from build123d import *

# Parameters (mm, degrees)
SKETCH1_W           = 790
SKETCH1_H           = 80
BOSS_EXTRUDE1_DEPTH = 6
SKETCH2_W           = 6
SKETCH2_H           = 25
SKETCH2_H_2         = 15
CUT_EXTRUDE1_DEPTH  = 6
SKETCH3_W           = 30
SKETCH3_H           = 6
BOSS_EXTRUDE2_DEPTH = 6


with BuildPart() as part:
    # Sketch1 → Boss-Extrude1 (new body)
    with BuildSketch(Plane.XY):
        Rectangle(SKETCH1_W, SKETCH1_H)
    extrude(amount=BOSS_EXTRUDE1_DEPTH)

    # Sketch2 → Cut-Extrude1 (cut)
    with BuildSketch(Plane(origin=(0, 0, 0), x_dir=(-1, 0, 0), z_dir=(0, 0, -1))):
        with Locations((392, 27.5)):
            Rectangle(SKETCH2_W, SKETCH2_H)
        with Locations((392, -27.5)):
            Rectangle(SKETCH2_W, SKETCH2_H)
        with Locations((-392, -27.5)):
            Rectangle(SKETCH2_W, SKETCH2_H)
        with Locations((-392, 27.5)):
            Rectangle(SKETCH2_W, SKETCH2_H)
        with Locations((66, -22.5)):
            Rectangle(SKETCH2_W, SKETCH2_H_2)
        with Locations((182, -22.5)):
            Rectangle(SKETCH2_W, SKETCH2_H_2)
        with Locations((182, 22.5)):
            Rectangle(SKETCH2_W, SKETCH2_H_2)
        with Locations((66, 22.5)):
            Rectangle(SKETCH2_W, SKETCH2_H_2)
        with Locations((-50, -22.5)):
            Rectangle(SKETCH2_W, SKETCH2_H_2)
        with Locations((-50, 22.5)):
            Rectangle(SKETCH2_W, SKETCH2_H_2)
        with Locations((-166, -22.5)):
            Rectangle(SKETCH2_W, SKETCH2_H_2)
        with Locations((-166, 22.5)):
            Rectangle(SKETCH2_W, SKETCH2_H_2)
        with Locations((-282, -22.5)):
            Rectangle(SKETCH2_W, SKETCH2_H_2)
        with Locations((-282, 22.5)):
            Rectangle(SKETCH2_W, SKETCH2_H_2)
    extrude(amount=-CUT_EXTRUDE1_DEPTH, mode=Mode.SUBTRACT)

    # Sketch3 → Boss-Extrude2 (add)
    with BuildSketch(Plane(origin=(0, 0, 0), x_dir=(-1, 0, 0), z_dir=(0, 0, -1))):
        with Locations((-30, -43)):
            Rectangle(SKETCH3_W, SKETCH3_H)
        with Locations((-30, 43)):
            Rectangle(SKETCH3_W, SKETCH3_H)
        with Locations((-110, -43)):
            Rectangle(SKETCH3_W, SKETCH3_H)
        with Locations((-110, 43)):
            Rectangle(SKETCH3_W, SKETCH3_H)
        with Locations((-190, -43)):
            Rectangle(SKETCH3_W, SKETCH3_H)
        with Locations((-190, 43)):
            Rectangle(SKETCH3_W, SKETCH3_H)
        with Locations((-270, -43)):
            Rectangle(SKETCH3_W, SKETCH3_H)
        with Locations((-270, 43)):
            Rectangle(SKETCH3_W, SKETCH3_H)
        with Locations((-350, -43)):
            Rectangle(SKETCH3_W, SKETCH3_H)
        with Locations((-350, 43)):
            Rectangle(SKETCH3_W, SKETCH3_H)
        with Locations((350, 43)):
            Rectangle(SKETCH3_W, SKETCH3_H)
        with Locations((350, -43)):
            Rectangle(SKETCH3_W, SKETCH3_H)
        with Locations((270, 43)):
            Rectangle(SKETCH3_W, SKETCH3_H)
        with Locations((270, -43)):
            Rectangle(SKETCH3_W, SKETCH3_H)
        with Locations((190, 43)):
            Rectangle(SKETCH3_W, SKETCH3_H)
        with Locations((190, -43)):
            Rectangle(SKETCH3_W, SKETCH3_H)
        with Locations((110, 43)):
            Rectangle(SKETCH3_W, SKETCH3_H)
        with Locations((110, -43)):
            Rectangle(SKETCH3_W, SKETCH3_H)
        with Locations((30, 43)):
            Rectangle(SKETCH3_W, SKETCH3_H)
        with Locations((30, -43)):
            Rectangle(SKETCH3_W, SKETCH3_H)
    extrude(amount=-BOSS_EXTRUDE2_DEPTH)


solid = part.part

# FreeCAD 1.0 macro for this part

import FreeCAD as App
import Part
import Sketcher
from FreeCAD import Vector


def add_polygon(sketch, points):
    """Adds a closed chain of lines whose ends are joined by coincident constraints."""
    first, n = sketch.GeometryCount, len(points)
    for a, b in zip(points, points[1:] + points[:1]):
        sketch.addGeometry(Part.LineSegment(App.Vector(*a, 0), App.Vector(*b, 0)), False)
    for i in range(n):
        sketch.addConstraint(Sketcher.Constraint("Coincident", first + i, 2, first + (i + 1) % n, 1))

doc = App.newDocument("Part")
body = doc.addObject("PartDesign::Body", "Body")

# Sketch on XY plane
sketch1 = body.newObject("Sketcher::SketchObject", "Sketch")
sketch1.AttachmentSupport = (doc.getObject("XY_Plane"), [""])
sketch1.MapMode = "FlatFace"
add_polygon(sketch1, [(-395, 40), (-395, -40), (395, -40), (395, 40)])  # lines 0-3
sketch1.addConstraint(Sketcher.Constraint("Vertical", 0))
sketch1.addConstraint(Sketcher.Constraint("Horizontal", 1))
sketch1.addConstraint(Sketcher.Constraint("Vertical", 2))
sketch1.addConstraint(Sketcher.Constraint("Horizontal", 3))
sketch1.addConstraint(Sketcher.Constraint("Symmetric", 0, 2, 2, 2, -1, 1))
sketch1.addConstraint(Sketcher.Constraint("DistanceX", 1, 1, 1, 2, 790.0))
sketch1.addConstraint(Sketcher.Constraint("DistanceY", 0, 2, 0, 1, 80.0))
pad1 = body.newObject("PartDesign::Pad", "Pad")
pad1.Profile = sketch1
pad1.Length = 6

# Sketch on XY plane
sketch2 = body.newObject("Sketcher::SketchObject", "Sketch001")
sketch2.AttachmentSupport = (doc.getObject("XY_Plane"), [""])
sketch2.MapMode = "FlatFace"
add_polygon(sketch2, [(-389, 40), (-389, 15), (-395, 15), (-395, 40)])  # lines 0-3
add_polygon(sketch2, [(-389, -15), (-389, -40), (-395, -40), (-395, -15)])  # lines 4-7
add_polygon(sketch2, [(395, -15), (395, -40), (389, -40), (389, -15)])  # lines 8-11
add_polygon(sketch2, [(395, 40), (395, 15), (389, 15), (389, 40)])  # lines 12-15
add_polygon(sketch2, [(-63, -15), (-63, -30), (-69, -30), (-69, -15)])  # lines 16-19
add_polygon(sketch2, [(-179, -15), (-179, -30), (-185, -30), (-185, -15)])  # lines 20-23
add_polygon(sketch2, [(-179, 30), (-179, 15), (-185, 15), (-185, 30)])  # lines 24-27
add_polygon(sketch2, [(-63, 30), (-63, 15), (-69, 15), (-69, 30)])  # lines 28-31
add_polygon(sketch2, [(53, -15), (53, -30), (47, -30), (47, -15)])  # lines 32-35
add_polygon(sketch2, [(53, 30), (53, 15), (47, 15), (47, 30)])  # lines 36-39
add_polygon(sketch2, [(169, -15), (169, -30), (163, -30), (163, -15)])  # lines 40-43
add_polygon(sketch2, [(169, 30), (169, 15), (163, 15), (163, 30)])  # lines 44-47
add_polygon(sketch2, [(285, -15), (285, -30), (279, -30), (279, -15)])  # lines 48-51
add_polygon(sketch2, [(285, 30), (285, 15), (279, 15), (279, 30)])  # lines 52-55
sketch2.addConstraint(Sketcher.Constraint("Vertical", 0))
sketch2.addConstraint(Sketcher.Constraint("Horizontal", 1))
sketch2.addConstraint(Sketcher.Constraint("Vertical", 2))
sketch2.addConstraint(Sketcher.Constraint("Horizontal", 3))
sketch2.addConstraint(Sketcher.Constraint("Vertical", 4))
sketch2.addConstraint(Sketcher.Constraint("Horizontal", 5))
sketch2.addConstraint(Sketcher.Constraint("Vertical", 6))
sketch2.addConstraint(Sketcher.Constraint("Horizontal", 7))
sketch2.addConstraint(Sketcher.Constraint("Vertical", 8))
sketch2.addConstraint(Sketcher.Constraint("Horizontal", 9))
sketch2.addConstraint(Sketcher.Constraint("Vertical", 10))
sketch2.addConstraint(Sketcher.Constraint("Horizontal", 11))
sketch2.addConstraint(Sketcher.Constraint("Vertical", 12))
sketch2.addConstraint(Sketcher.Constraint("Horizontal", 13))
sketch2.addConstraint(Sketcher.Constraint("Vertical", 14))
sketch2.addConstraint(Sketcher.Constraint("Horizontal", 15))
sketch2.addConstraint(Sketcher.Constraint("Vertical", 16))
sketch2.addConstraint(Sketcher.Constraint("Horizontal", 17))
sketch2.addConstraint(Sketcher.Constraint("Vertical", 18))
sketch2.addConstraint(Sketcher.Constraint("Horizontal", 19))
sketch2.addConstraint(Sketcher.Constraint("Vertical", 20))
sketch2.addConstraint(Sketcher.Constraint("Horizontal", 21))
sketch2.addConstraint(Sketcher.Constraint("Vertical", 22))
sketch2.addConstraint(Sketcher.Constraint("Horizontal", 23))
sketch2.addConstraint(Sketcher.Constraint("Vertical", 24))
sketch2.addConstraint(Sketcher.Constraint("Horizontal", 25))
sketch2.addConstraint(Sketcher.Constraint("Vertical", 26))
sketch2.addConstraint(Sketcher.Constraint("Horizontal", 27))
sketch2.addConstraint(Sketcher.Constraint("Vertical", 28))
sketch2.addConstraint(Sketcher.Constraint("Horizontal", 29))
sketch2.addConstraint(Sketcher.Constraint("Vertical", 30))
sketch2.addConstraint(Sketcher.Constraint("Horizontal", 31))
sketch2.addConstraint(Sketcher.Constraint("Vertical", 32))
sketch2.addConstraint(Sketcher.Constraint("Horizontal", 33))
sketch2.addConstraint(Sketcher.Constraint("Vertical", 34))
sketch2.addConstraint(Sketcher.Constraint("Horizontal", 35))
sketch2.addConstraint(Sketcher.Constraint("Vertical", 36))
sketch2.addConstraint(Sketcher.Constraint("Horizontal", 37))
sketch2.addConstraint(Sketcher.Constraint("Vertical", 38))
sketch2.addConstraint(Sketcher.Constraint("Horizontal", 39))
sketch2.addConstraint(Sketcher.Constraint("Vertical", 40))
sketch2.addConstraint(Sketcher.Constraint("Horizontal", 41))
sketch2.addConstraint(Sketcher.Constraint("Vertical", 42))
sketch2.addConstraint(Sketcher.Constraint("Horizontal", 43))
sketch2.addConstraint(Sketcher.Constraint("Vertical", 44))
sketch2.addConstraint(Sketcher.Constraint("Horizontal", 45))
sketch2.addConstraint(Sketcher.Constraint("Vertical", 46))
sketch2.addConstraint(Sketcher.Constraint("Horizontal", 47))
sketch2.addConstraint(Sketcher.Constraint("Vertical", 48))
sketch2.addConstraint(Sketcher.Constraint("Horizontal", 49))
sketch2.addConstraint(Sketcher.Constraint("Vertical", 50))
sketch2.addConstraint(Sketcher.Constraint("Horizontal", 51))
sketch2.addConstraint(Sketcher.Constraint("Vertical", 52))
sketch2.addConstraint(Sketcher.Constraint("Horizontal", 53))
sketch2.addConstraint(Sketcher.Constraint("Vertical", 54))
sketch2.addConstraint(Sketcher.Constraint("Horizontal", 55))
sketch2.addConstraint(Sketcher.Constraint("Symmetric", 2, 2, 8, 2, -1, 1))
sketch2.addConstraint(Sketcher.Constraint("Symmetric", 0, 2, 10, 2, -1, 1))
sketch2.addConstraint(Sketcher.Constraint("Symmetric", 6, 2, 12, 2, -1, 1))
sketch2.addConstraint(Sketcher.Constraint("Symmetric", 4, 2, 14, 2, -1, 1))
sketch2.addConstraint(Sketcher.Constraint("Symmetric", 5, 2, 8, 2, -2))
sketch2.addConstraint(Sketcher.Constraint("Symmetric", 7, 2, 10, 2, -2))
sketch2.addConstraint(Sketcher.Constraint("Symmetric", 23, 2, 24, 2, -1))
sketch2.addConstraint(Sketcher.Constraint("Symmetric", 21, 2, 26, 2, -1))
sketch2.addConstraint(Sketcher.Constraint("Symmetric", 19, 2, 28, 2, -1))
sketch2.addConstraint(Sketcher.Constraint("Symmetric", 17, 2, 30, 2, -1))
sketch2.addConstraint(Sketcher.Constraint("Symmetric", 35, 2, 36, 2, -1))
sketch2.addConstraint(Sketcher.Constraint("Symmetric", 33, 2, 38, 2, -1))
sketch2.addConstraint(Sketcher.Constraint("Symmetric", 43, 2, 44, 2, -1))
sketch2.addConstraint(Sketcher.Constraint("Symmetric", 41, 2, 46, 2, -1))
sketch2.addConstraint(Sketcher.Constraint("Symmetric", 51, 2, 52, 2, -1))
sketch2.addConstraint(Sketcher.Constraint("Symmetric", 49, 2, 54, 2, -1))
sketch2.addConstraint(Sketcher.Constraint("Horizontal", 11, 2, 18, 2))
sketch2.addConstraint(Sketcher.Constraint("Horizontal", 17, 2, 20, 2))
sketch2.addConstraint(Sketcher.Constraint("Horizontal", 19, 2, 22, 2))
sketch2.addConstraint(Sketcher.Constraint("Horizontal", 21, 2, 32, 2))
sketch2.addConstraint(Sketcher.Constraint("Horizontal", 23, 2, 34, 2))
sketch2.addConstraint(Sketcher.Constraint("Horizontal", 33, 2, 40, 2))
sketch2.addConstraint(Sketcher.Constraint("Horizontal", 35, 2, 42, 2))
sketch2.addConstraint(Sketcher.Constraint("Horizontal", 41, 2, 48, 2))
sketch2.addConstraint(Sketcher.Constraint("Horizontal", 43, 2, 50, 2))
sketch2.addConstraint(Sketcher.Constraint("Equal", 15, 17))
sketch2.addConstraint(Sketcher.Constraint("Equal", 19, 21))
sketch2.addConstraint(Sketcher.Constraint("Equal", 31, 33))
sketch2.addConstraint(Sketcher.Constraint("Equal", 39, 41))
sketch2.addConstraint(Sketcher.Constraint("Equal", 47, 49))
sketch2.addConstraint(Sketcher.Constraint("DistanceX", 1, 2, 1, 1, 6.0))
sketch2.addConstraint(Sketcher.Constraint("DistanceY", 0, 2, 0, 1, 25.0))
sketch2.addConstraint(Sketcher.Constraint("DistanceY", 16, 2, 16, 1, 15.0))
sketch2.addConstraint(Sketcher.Constraint("DistanceX", 0, 2, -1, 1, 389.0))
sketch2.addConstraint(Sketcher.Constraint("DistanceY", -1, 1, 0, 2, 15.0))
sketch2.addConstraint(Sketcher.Constraint("DistanceX", 16, 2, -1, 1, 63.0))
sketch2.addConstraint(Sketcher.Constraint("DistanceX", 20, 2, -1, 1, 179.0))
sketch2.addConstraint(Sketcher.Constraint("DistanceX", -1, 1, 32, 2, 53.0))
sketch2.addConstraint(Sketcher.Constraint("DistanceX", -1, 1, 40, 2, 169.0))
sketch2.addConstraint(Sketcher.Constraint("DistanceX", -1, 1, 48, 2, 285.0))
pocket1 = body.newObject("PartDesign::Pocket", "Pocket")
pocket1.Profile = sketch2
pocket1.Length = 6
pocket1.Reversed = True

# Sketch on XY plane
sketch3 = body.newObject("Sketcher::SketchObject", "Sketch002")
sketch3.AttachmentSupport = (doc.getObject("XY_Plane"), [""])
sketch3.MapMode = "FlatFace"
add_polygon(sketch3, [(45, -40), (45, -46), (15, -46), (15, -40)])  # lines 0-3
add_polygon(sketch3, [(45, 46), (45, 40), (15, 40), (15, 46)])  # lines 4-7
add_polygon(sketch3, [(125, -40), (125, -46), (95, -46), (95, -40)])  # lines 8-11
add_polygon(sketch3, [(125, 46), (125, 40), (95, 40), (95, 46)])  # lines 12-15
add_polygon(sketch3, [(205, -40), (205, -46), (175, -46), (175, -40)])  # lines 16-19
add_polygon(sketch3, [(205, 46), (205, 40), (175, 40), (175, 46)])  # lines 20-23
add_polygon(sketch3, [(285, -40), (285, -46), (255, -46), (255, -40)])  # lines 24-27
add_polygon(sketch3, [(285, 46), (285, 40), (255, 40), (255, 46)])  # lines 28-31
add_polygon(sketch3, [(365, -40), (365, -46), (335, -46), (335, -40)])  # lines 32-35
add_polygon(sketch3, [(365, 46), (365, 40), (335, 40), (335, 46)])  # lines 36-39
add_polygon(sketch3, [(-335, 46), (-335, 40), (-365, 40), (-365, 46)])  # lines 40-43
add_polygon(sketch3, [(-335, -40), (-335, -46), (-365, -46), (-365, -40)])  # lines 44-47
add_polygon(sketch3, [(-255, 46), (-255, 40), (-285, 40), (-285, 46)])  # lines 48-51
add_polygon(sketch3, [(-255, -40), (-255, -46), (-285, -46), (-285, -40)])  # lines 52-55
add_polygon(sketch3, [(-175, 46), (-175, 40), (-205, 40), (-205, 46)])  # lines 56-59
add_polygon(sketch3, [(-175, -40), (-175, -46), (-205, -46), (-205, -40)])  # lines 60-63
add_polygon(sketch3, [(-95, 46), (-95, 40), (-125, 40), (-125, 46)])  # lines 64-67
add_polygon(sketch3, [(-95, -40), (-95, -46), (-125, -46), (-125, -40)])  # lines 68-71
add_polygon(sketch3, [(-15, 46), (-15, 40), (-45, 40), (-45, 46)])  # lines 72-75
add_polygon(sketch3, [(-15, -40), (-15, -46), (-45, -46), (-45, -40)])  # lines 76-79
sketch3.addConstraint(Sketcher.Constraint("Vertical", 0))
sketch3.addConstraint(Sketcher.Constraint("Horizontal", 1))
sketch3.addConstraint(Sketcher.Constraint("Vertical", 2))
sketch3.addConstraint(Sketcher.Constraint("Horizontal", 3))
sketch3.addConstraint(Sketcher.Constraint("Vertical", 4))
sketch3.addConstraint(Sketcher.Constraint("Horizontal", 5))
sketch3.addConstraint(Sketcher.Constraint("Vertical", 6))
sketch3.addConstraint(Sketcher.Constraint("Horizontal", 7))
sketch3.addConstraint(Sketcher.Constraint("Vertical", 8))
sketch3.addConstraint(Sketcher.Constraint("Horizontal", 9))
sketch3.addConstraint(Sketcher.Constraint("Vertical", 10))
sketch3.addConstraint(Sketcher.Constraint("Horizontal", 11))
sketch3.addConstraint(Sketcher.Constraint("Vertical", 12))
sketch3.addConstraint(Sketcher.Constraint("Horizontal", 13))
sketch3.addConstraint(Sketcher.Constraint("Vertical", 14))
sketch3.addConstraint(Sketcher.Constraint("Horizontal", 15))
sketch3.addConstraint(Sketcher.Constraint("Vertical", 16))
sketch3.addConstraint(Sketcher.Constraint("Horizontal", 17))
sketch3.addConstraint(Sketcher.Constraint("Vertical", 18))
sketch3.addConstraint(Sketcher.Constraint("Horizontal", 19))
sketch3.addConstraint(Sketcher.Constraint("Vertical", 20))
sketch3.addConstraint(Sketcher.Constraint("Horizontal", 21))
sketch3.addConstraint(Sketcher.Constraint("Vertical", 22))
sketch3.addConstraint(Sketcher.Constraint("Horizontal", 23))
sketch3.addConstraint(Sketcher.Constraint("Vertical", 24))
sketch3.addConstraint(Sketcher.Constraint("Horizontal", 25))
sketch3.addConstraint(Sketcher.Constraint("Vertical", 26))
sketch3.addConstraint(Sketcher.Constraint("Horizontal", 27))
sketch3.addConstraint(Sketcher.Constraint("Vertical", 28))
sketch3.addConstraint(Sketcher.Constraint("Horizontal", 29))
sketch3.addConstraint(Sketcher.Constraint("Vertical", 30))
sketch3.addConstraint(Sketcher.Constraint("Horizontal", 31))
sketch3.addConstraint(Sketcher.Constraint("Vertical", 32))
sketch3.addConstraint(Sketcher.Constraint("Horizontal", 33))
sketch3.addConstraint(Sketcher.Constraint("Vertical", 34))
sketch3.addConstraint(Sketcher.Constraint("Horizontal", 35))
sketch3.addConstraint(Sketcher.Constraint("Vertical", 36))
sketch3.addConstraint(Sketcher.Constraint("Horizontal", 37))
sketch3.addConstraint(Sketcher.Constraint("Vertical", 38))
sketch3.addConstraint(Sketcher.Constraint("Horizontal", 39))
sketch3.addConstraint(Sketcher.Constraint("Vertical", 40))
sketch3.addConstraint(Sketcher.Constraint("Horizontal", 41))
sketch3.addConstraint(Sketcher.Constraint("Vertical", 42))
sketch3.addConstraint(Sketcher.Constraint("Horizontal", 43))
sketch3.addConstraint(Sketcher.Constraint("Vertical", 44))
sketch3.addConstraint(Sketcher.Constraint("Horizontal", 45))
sketch3.addConstraint(Sketcher.Constraint("Vertical", 46))
sketch3.addConstraint(Sketcher.Constraint("Horizontal", 47))
sketch3.addConstraint(Sketcher.Constraint("Vertical", 48))
sketch3.addConstraint(Sketcher.Constraint("Horizontal", 49))
sketch3.addConstraint(Sketcher.Constraint("Vertical", 50))
sketch3.addConstraint(Sketcher.Constraint("Horizontal", 51))
sketch3.addConstraint(Sketcher.Constraint("Vertical", 52))
sketch3.addConstraint(Sketcher.Constraint("Horizontal", 53))
sketch3.addConstraint(Sketcher.Constraint("Vertical", 54))
sketch3.addConstraint(Sketcher.Constraint("Horizontal", 55))
sketch3.addConstraint(Sketcher.Constraint("Vertical", 56))
sketch3.addConstraint(Sketcher.Constraint("Horizontal", 57))
sketch3.addConstraint(Sketcher.Constraint("Vertical", 58))
sketch3.addConstraint(Sketcher.Constraint("Horizontal", 59))
sketch3.addConstraint(Sketcher.Constraint("Vertical", 60))
sketch3.addConstraint(Sketcher.Constraint("Horizontal", 61))
sketch3.addConstraint(Sketcher.Constraint("Vertical", 62))
sketch3.addConstraint(Sketcher.Constraint("Horizontal", 63))
sketch3.addConstraint(Sketcher.Constraint("Vertical", 64))
sketch3.addConstraint(Sketcher.Constraint("Horizontal", 65))
sketch3.addConstraint(Sketcher.Constraint("Vertical", 66))
sketch3.addConstraint(Sketcher.Constraint("Horizontal", 67))
sketch3.addConstraint(Sketcher.Constraint("Vertical", 68))
sketch3.addConstraint(Sketcher.Constraint("Horizontal", 69))
sketch3.addConstraint(Sketcher.Constraint("Vertical", 70))
sketch3.addConstraint(Sketcher.Constraint("Horizontal", 71))
sketch3.addConstraint(Sketcher.Constraint("Vertical", 72))
sketch3.addConstraint(Sketcher.Constraint("Horizontal", 73))
sketch3.addConstraint(Sketcher.Constraint("Vertical", 74))
sketch3.addConstraint(Sketcher.Constraint("Horizontal", 75))
sketch3.addConstraint(Sketcher.Constraint("Vertical", 76))
sketch3.addConstraint(Sketcher.Constraint("Horizontal", 77))
sketch3.addConstraint(Sketcher.Constraint("Vertical", 78))
sketch3.addConstraint(Sketcher.Constraint("Horizontal", 79))
sketch3.addConstraint(Sketcher.Constraint("Symmetric", 34, 2, 40, 2, -1, 1))
sketch3.addConstraint(Sketcher.Constraint("Symmetric", 32, 2, 42, 2, -1, 1))
sketch3.addConstraint(Sketcher.Constraint("Symmetric", 38, 2, 44, 2, -1, 1))
sketch3.addConstraint(Sketcher.Constraint("Symmetric", 36, 2, 46, 2, -1, 1))
sketch3.addConstraint(Sketcher.Constraint("Symmetric", 26, 2, 48, 2, -1, 1))
sketch3.addConstraint(Sketcher.Constraint("Symmetric", 24, 2, 50, 2, -1, 1))
sketch3.addConstraint(Sketcher.Constraint("Symmetric", 30, 2, 52, 2, -1, 1))
sketch3.addConstraint(Sketcher.Constraint("Symmetric", 28, 2, 54, 2, -1, 1))
sketch3.addConstraint(Sketcher.Constraint("Symmetric", 18, 2, 56, 2, -1, 1))
sketch3.addConstraint(Sketcher.Constraint("Symmetric", 16, 2, 58, 2, -1, 1))
sketch3.addConstraint(Sketcher.Constraint("Symmetric", 22, 2, 60, 2, -1, 1))
sketch3.addConstraint(Sketcher.Constraint("Symmetric", 20, 2, 62, 2, -1, 1))
sketch3.addConstraint(Sketcher.Constraint("Symmetric", 10, 2, 64, 2, -1, 1))
sketch3.addConstraint(Sketcher.Constraint("Symmetric", 8, 2, 66, 2, -1, 1))
sketch3.addConstraint(Sketcher.Constraint("Symmetric", 14, 2, 68, 2, -1, 1))
sketch3.addConstraint(Sketcher.Constraint("Symmetric", 12, 2, 70, 2, -1, 1))
sketch3.addConstraint(Sketcher.Constraint("Symmetric", 2, 2, 72, 2, -1, 1))
sketch3.addConstraint(Sketcher.Constraint("Symmetric", 0, 2, 74, 2, -1, 1))
sketch3.addConstraint(Sketcher.Constraint("Symmetric", 6, 2, 76, 2, -1, 1))
sketch3.addConstraint(Sketcher.Constraint("Symmetric", 4, 2, 78, 2, -1, 1))
sketch3.addConstraint(Sketcher.Constraint("Symmetric", 37, 2, 40, 2, -2))
sketch3.addConstraint(Sketcher.Constraint("Symmetric", 39, 2, 42, 2, -2))
sketch3.addConstraint(Sketcher.Constraint("Symmetric", 29, 2, 48, 2, -2))
sketch3.addConstraint(Sketcher.Constraint("Symmetric", 31, 2, 50, 2, -2))
sketch3.addConstraint(Sketcher.Constraint("Symmetric", 21, 2, 56, 2, -2))
sketch3.addConstraint(Sketcher.Constraint("Symmetric", 23, 2, 58, 2, -2))
sketch3.addConstraint(Sketcher.Constraint("Symmetric", 13, 2, 64, 2, -2))
sketch3.addConstraint(Sketcher.Constraint("Symmetric", 15, 2, 66, 2, -2))
sketch3.addConstraint(Sketcher.Constraint("Symmetric", 5, 2, 72, 2, -2))
sketch3.addConstraint(Sketcher.Constraint("Symmetric", 7, 2, 74, 2, -2))
sketch3.addConstraint(Sketcher.Constraint("Horizontal", 1, 2, 8, 2))
sketch3.addConstraint(Sketcher.Constraint("Horizontal", 3, 2, 10, 2))
sketch3.addConstraint(Sketcher.Constraint("Horizontal", 9, 2, 16, 2))
sketch3.addConstraint(Sketcher.Constraint("Horizontal", 11, 2, 18, 2))
sketch3.addConstraint(Sketcher.Constraint("Horizontal", 17, 2, 24, 2))
sketch3.addConstraint(Sketcher.Constraint("Horizontal", 19, 2, 26, 2))
sketch3.addConstraint(Sketcher.Constraint("Horizontal", 25, 2, 32, 2))
sketch3.addConstraint(Sketcher.Constraint("Horizontal", 27, 2, 34, 2))
sketch3.addConstraint(Sketcher.Constraint("Equal", 7, 9))
sketch3.addConstraint(Sketcher.Constraint("Equal", 15, 17))
sketch3.addConstraint(Sketcher.Constraint("Equal", 23, 25))
sketch3.addConstraint(Sketcher.Constraint("Equal", 31, 33))
sketch3.addConstraint(Sketcher.Constraint("DistanceX", 1, 2, 1, 1, 30.0))
sketch3.addConstraint(Sketcher.Constraint("DistanceY", 0, 2, 0, 1, 6.0))
sketch3.addConstraint(Sketcher.Constraint("DistanceX", -1, 1, 0, 2, 45.0))
sketch3.addConstraint(Sketcher.Constraint("DistanceY", 0, 2, -1, 1, 46.0))
sketch3.addConstraint(Sketcher.Constraint("DistanceX", -1, 1, 8, 2, 125.0))
sketch3.addConstraint(Sketcher.Constraint("DistanceX", -1, 1, 16, 2, 205.0))
sketch3.addConstraint(Sketcher.Constraint("DistanceX", -1, 1, 24, 2, 285.0))
sketch3.addConstraint(Sketcher.Constraint("DistanceX", -1, 1, 32, 2, 365.0))
pad2 = body.newObject("PartDesign::Pad", "Pad001")
pad2.Profile = sketch3
pad2.Length = 6

doc.recompute()
